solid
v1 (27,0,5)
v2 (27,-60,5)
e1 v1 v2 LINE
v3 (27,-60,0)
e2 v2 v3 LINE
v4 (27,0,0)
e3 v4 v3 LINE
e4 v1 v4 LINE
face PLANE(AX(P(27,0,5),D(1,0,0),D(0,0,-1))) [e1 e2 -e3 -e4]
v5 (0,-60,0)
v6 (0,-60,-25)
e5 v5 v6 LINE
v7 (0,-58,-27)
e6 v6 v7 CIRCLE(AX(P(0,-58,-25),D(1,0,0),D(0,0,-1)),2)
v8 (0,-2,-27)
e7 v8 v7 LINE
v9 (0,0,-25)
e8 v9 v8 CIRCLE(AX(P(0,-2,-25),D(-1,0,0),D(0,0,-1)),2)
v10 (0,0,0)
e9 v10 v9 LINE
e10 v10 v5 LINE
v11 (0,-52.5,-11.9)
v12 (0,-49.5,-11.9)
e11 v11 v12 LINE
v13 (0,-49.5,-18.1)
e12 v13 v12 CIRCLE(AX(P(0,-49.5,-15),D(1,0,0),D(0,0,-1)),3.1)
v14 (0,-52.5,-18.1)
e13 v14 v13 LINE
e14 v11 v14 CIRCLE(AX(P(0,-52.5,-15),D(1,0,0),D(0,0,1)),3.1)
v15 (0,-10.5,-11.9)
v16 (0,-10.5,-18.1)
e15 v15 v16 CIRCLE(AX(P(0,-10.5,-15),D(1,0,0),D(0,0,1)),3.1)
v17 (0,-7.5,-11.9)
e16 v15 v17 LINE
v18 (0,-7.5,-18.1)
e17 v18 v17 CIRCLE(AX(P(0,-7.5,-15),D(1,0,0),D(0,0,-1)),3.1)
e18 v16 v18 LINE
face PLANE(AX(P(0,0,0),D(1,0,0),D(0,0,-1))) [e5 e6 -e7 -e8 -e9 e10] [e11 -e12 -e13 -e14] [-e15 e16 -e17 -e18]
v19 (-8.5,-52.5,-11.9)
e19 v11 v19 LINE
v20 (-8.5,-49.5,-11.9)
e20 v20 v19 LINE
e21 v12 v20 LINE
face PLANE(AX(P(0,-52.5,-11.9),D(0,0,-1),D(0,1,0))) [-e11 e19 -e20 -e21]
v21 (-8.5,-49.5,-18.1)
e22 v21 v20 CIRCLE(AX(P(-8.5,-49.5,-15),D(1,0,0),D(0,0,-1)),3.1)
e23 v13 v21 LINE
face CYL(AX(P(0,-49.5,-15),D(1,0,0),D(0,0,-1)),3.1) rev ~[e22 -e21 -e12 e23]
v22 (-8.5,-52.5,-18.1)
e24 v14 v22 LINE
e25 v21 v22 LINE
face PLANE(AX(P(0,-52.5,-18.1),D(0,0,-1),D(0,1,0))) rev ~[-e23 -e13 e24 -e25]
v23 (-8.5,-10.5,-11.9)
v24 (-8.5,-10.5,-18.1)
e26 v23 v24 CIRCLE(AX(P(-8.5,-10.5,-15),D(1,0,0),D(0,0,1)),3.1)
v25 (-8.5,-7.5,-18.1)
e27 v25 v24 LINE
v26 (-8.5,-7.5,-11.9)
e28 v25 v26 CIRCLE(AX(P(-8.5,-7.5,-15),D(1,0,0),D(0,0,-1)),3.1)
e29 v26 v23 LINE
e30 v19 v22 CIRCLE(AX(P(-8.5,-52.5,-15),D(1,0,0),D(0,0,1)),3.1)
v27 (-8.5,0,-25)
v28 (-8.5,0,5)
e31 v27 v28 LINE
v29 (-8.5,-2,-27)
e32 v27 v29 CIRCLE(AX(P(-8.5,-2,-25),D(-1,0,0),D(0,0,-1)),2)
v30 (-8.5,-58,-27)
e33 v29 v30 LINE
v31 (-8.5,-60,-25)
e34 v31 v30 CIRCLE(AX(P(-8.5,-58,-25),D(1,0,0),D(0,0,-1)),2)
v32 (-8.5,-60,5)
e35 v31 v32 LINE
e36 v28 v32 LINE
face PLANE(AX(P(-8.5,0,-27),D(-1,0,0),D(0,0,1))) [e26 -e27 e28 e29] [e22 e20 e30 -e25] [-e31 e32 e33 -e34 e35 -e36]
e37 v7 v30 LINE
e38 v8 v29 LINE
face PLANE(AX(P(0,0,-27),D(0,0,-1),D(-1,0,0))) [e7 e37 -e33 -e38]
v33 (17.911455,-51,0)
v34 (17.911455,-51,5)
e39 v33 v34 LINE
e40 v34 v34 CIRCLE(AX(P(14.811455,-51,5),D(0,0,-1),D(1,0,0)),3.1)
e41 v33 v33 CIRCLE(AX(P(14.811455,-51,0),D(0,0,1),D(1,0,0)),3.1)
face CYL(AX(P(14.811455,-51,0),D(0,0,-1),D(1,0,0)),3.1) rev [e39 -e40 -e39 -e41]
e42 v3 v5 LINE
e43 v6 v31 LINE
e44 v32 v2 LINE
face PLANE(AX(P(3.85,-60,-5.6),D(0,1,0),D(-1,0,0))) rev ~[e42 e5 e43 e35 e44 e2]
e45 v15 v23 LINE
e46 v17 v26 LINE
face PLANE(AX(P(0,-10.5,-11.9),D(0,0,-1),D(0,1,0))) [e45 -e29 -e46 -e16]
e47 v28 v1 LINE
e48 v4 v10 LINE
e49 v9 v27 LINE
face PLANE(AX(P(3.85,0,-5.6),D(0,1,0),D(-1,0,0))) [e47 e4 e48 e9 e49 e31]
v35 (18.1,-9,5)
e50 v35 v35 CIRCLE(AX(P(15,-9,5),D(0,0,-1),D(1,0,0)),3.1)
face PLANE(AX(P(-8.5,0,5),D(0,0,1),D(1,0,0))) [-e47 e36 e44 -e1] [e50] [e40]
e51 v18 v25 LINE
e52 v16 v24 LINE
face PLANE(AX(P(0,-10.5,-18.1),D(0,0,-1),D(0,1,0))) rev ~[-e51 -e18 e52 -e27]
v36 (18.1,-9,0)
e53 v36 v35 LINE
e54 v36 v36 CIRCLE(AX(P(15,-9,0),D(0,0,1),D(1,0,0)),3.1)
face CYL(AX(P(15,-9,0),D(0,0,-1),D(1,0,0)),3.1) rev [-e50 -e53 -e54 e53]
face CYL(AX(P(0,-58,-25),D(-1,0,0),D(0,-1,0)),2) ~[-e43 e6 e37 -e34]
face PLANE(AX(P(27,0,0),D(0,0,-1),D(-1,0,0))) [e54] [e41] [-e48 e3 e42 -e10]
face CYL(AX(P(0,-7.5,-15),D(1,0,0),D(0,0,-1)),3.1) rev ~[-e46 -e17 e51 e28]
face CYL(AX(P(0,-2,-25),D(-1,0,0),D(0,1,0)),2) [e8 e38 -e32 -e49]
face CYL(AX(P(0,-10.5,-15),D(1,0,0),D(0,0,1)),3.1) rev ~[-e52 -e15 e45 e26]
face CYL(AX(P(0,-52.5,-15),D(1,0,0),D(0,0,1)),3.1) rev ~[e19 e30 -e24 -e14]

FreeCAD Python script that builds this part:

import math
import FreeCAD as App
import Part
import Sketcher

V = App.Vector
Q = App.Units.Quantity


def edges_at(feature, points):
    """Names of the edges that pass closest to the given points."""
    edges = feature.Shape.Edges
    near = lambda p: min(range(len(edges)), key=lambda i: edges[i].distToShape(Part.Vertex(*p))[0])
    return sorted({f"Edge{near(p) + 1}" for p in points})


def add_polygon(sketch, points):
    """Adds a closed chain of lines whose ends are joined by coincident constraints."""
    first, n = sketch.GeometryCount, len(points)
    for a, b in zip(points, points[1:] + points[:1]):
        sketch.addGeometry(Part.LineSegment(App.Vector(*a, 0), App.Vector(*b, 0)), False)
    for i in range(n):
        sketch.addConstraint(Sketcher.Constraint("Coincident", first + i, 2, first + (i + 1) % n, 1))

doc = App.newDocument("Part")
body = doc.addObject("PartDesign::Body", "Body")

# Sketch on XZ plane
sketch1 = body.newObject("Sketcher::SketchObject", "Sketch")
sketch1.AttachmentSupport = (doc.getObject("XZ_Plane"), [""])
sketch1.MapMode = "FlatFace"
add_polygon(sketch1, [(27, 5), (-8, 5), (-8, -27), (0, -27), (0, 0), (27, 0)])  # lines 0-5
sketch1.addConstraint(Sketcher.Constraint("Horizontal", 0))
sketch1.addConstraint(Sketcher.Constraint("Vertical", 1))
sketch1.addConstraint(Sketcher.Constraint("Horizontal", 2))
sketch1.addConstraint(Sketcher.Constraint("Vertical", 3))
sketch1.addConstraint(Sketcher.Constraint("Horizontal", 4))
sketch1.addConstraint(Sketcher.Constraint("Vertical", 5))
sketch1.addConstraint(Sketcher.Constraint("Coincident", 3, 2, -1, 1))
sketch1.addConstraint(Sketcher.Constraint("Equal", 4, 3))
sketch1.addConstraint(Sketcher.Constraint("DistanceX", 4, 1, 4, 2, Q("27 mm")))
sketch1.addConstraint(Sketcher.Constraint("DistanceY", 1, 2, 1, 1, Q("32 mm")))
sketch1.addConstraint(Sketcher.Constraint("DistanceX", 0, 2, 0, 1, Q("35.5 mm")))
pad1 = body.newObject("PartDesign::Pad", "Pad")
pad1.Profile = sketch1
pad1.Length = 60

# Sketch on XY plane
sketch2 = body.newObject("Sketcher::SketchObject", "Sketch001")
sketch2.AttachmentSupport = (doc.getObject("XY_Plane"), [""])
sketch2.MapMode = "FlatFace"
sketch2.addGeometry(Part.Circle(V(14.8, -51, 0), V(0, 0, 1), 3.1), False)
sketch2.addGeometry(Part.Circle(V(15, -9, 0), V(0, 0, 1), 3.1), False)
sketch2.addConstraint(Sketcher.Constraint("Equal", 0, 1))
sketch2.addConstraint(Sketcher.Constraint("Diameter", 0, Q("6.2 mm")))
sketch2.addConstraint(Sketcher.Constraint("DistanceY", 0, 3, -1, 1, Q("51 mm")))
sketch2.addConstraint(Sketcher.Constraint("DistanceX", -1, 1, 1, 3, Q("15 mm")))
sketch2.addConstraint(Sketcher.Constraint("DistanceY", 1, 3, -1, 1, Q("9 mm")))
sketch2.addConstraint(Sketcher.Constraint("DistanceX", -1, 1, 0, 3, Q("14.811455 mm")))
pocket1 = body.newObject("PartDesign::Pocket", "Pocket")
pocket1.Profile = sketch2
pocket1.Type = "ThroughAll"
pocket1.Midplane = True

# Sketch on YZ plane
sketch3 = body.newObject("Sketcher::SketchObject", "Sketch002")
sketch3.AttachmentSupport = (doc.getObject("YZ_Plane"), [""])
sketch3.MapMode = "FlatFace"
sketch3.addGeometry(Part.ArcOfCircle(Part.Circle(V(-52.5, -15, 0), V(0, 0, 1), 3.1), math.radians(90), math.radians(270)), False)
sketch3.addGeometry(Part.LineSegment(V(-52.5, -18.1, 0), V(-49.5, -18.1, 0)), False)
sketch3.addGeometry(Part.ArcOfCircle(Part.Circle(V(-49.5, -15, 0), V(0, 0, 1), 3.1), math.radians(-90), math.radians(90)), False)
sketch3.addGeometry(Part.LineSegment(V(-49.5, -11.9, 0), V(-52.5, -11.9, 0)), False)
sketch3.addGeometry(Part.ArcOfCircle(Part.Circle(V(-10.5, -15, 0), V(0, 0, 1), 3.1), math.radians(90), math.radians(270)), False)
sketch3.addGeometry(Part.LineSegment(V(-10.5, -18.1, 0), V(-7.5, -18.1, 0)), False)
sketch3.addGeometry(Part.ArcOfCircle(Part.Circle(V(-7.5, -15, 0), V(0, 0, 1), 3.1), math.radians(-90), math.radians(90)), False)
sketch3.addGeometry(Part.LineSegment(V(-7.5, -11.9, 0), V(-10.5, -11.9, 0)), False)
sketch3.addConstraint(Sketcher.Constraint("Tangent", 0, 2, 1, 1))
sketch3.addConstraint(Sketcher.Constraint("Tangent", 1, 2, 2, 1))
sketch3.addConstraint(Sketcher.Constraint("Tangent", 2, 2, 3, 1))
sketch3.addConstraint(Sketcher.Constraint("Tangent", 3, 2, 0, 1))
sketch3.addConstraint(Sketcher.Constraint("Tangent", 4, 2, 5, 1))
sketch3.addConstraint(Sketcher.Constraint("Tangent", 5, 2, 6, 1))
sketch3.addConstraint(Sketcher.Constraint("Tangent", 6, 2, 7, 1))
sketch3.addConstraint(Sketcher.Constraint("Tangent", 7, 2, 4, 1))
sketch3.addConstraint(Sketcher.Constraint("Horizontal", 1))
sketch3.addConstraint(Sketcher.Constraint("Horizontal", 3))
sketch3.addConstraint(Sketcher.Constraint("Horizontal", 5))
sketch3.addConstraint(Sketcher.Constraint("Horizontal", 7))
sketch3.addConstraint(Sketcher.Constraint("Equal", 2, 4))
sketch3.addConstraint(Sketcher.Constraint("Horizontal", 2, 3, 4, 3))
sketch3.addConstraint(Sketcher.Constraint("Equal", 3, 5))
sketch3.addConstraint(Sketcher.Constraint("Radius", 0, Q("3.1 mm")))
sketch3.addConstraint(Sketcher.Constraint("DistanceX", 1, 1, 1, 2, Q("3 mm")))
sketch3.addConstraint(Sketcher.Constraint("DistanceY", 0, 3, -1, 1, Q("15 mm")))
sketch3.addConstraint(Sketcher.Constraint("DistanceX", 2, 3, 4, 3, Q("39 mm")))
sketch3.addConstraint(Sketcher.Constraint("DistanceX", 0, 3, -1, 1, Q("52.5 mm")))
pocket2 = body.newObject("PartDesign::Pocket", "Pocket001")
pocket2.Profile = sketch3
pocket2.Type = "ThroughAll"
doc.recompute()

fillet = body.newObject("PartDesign::Fillet", "Fillet")
fillet.Base = (pocket2, edges_at(pocket2, [(-4.25, -60, -27), (-4.25, 0, -27)]))
fillet.Radius = 2

doc.recompute()
